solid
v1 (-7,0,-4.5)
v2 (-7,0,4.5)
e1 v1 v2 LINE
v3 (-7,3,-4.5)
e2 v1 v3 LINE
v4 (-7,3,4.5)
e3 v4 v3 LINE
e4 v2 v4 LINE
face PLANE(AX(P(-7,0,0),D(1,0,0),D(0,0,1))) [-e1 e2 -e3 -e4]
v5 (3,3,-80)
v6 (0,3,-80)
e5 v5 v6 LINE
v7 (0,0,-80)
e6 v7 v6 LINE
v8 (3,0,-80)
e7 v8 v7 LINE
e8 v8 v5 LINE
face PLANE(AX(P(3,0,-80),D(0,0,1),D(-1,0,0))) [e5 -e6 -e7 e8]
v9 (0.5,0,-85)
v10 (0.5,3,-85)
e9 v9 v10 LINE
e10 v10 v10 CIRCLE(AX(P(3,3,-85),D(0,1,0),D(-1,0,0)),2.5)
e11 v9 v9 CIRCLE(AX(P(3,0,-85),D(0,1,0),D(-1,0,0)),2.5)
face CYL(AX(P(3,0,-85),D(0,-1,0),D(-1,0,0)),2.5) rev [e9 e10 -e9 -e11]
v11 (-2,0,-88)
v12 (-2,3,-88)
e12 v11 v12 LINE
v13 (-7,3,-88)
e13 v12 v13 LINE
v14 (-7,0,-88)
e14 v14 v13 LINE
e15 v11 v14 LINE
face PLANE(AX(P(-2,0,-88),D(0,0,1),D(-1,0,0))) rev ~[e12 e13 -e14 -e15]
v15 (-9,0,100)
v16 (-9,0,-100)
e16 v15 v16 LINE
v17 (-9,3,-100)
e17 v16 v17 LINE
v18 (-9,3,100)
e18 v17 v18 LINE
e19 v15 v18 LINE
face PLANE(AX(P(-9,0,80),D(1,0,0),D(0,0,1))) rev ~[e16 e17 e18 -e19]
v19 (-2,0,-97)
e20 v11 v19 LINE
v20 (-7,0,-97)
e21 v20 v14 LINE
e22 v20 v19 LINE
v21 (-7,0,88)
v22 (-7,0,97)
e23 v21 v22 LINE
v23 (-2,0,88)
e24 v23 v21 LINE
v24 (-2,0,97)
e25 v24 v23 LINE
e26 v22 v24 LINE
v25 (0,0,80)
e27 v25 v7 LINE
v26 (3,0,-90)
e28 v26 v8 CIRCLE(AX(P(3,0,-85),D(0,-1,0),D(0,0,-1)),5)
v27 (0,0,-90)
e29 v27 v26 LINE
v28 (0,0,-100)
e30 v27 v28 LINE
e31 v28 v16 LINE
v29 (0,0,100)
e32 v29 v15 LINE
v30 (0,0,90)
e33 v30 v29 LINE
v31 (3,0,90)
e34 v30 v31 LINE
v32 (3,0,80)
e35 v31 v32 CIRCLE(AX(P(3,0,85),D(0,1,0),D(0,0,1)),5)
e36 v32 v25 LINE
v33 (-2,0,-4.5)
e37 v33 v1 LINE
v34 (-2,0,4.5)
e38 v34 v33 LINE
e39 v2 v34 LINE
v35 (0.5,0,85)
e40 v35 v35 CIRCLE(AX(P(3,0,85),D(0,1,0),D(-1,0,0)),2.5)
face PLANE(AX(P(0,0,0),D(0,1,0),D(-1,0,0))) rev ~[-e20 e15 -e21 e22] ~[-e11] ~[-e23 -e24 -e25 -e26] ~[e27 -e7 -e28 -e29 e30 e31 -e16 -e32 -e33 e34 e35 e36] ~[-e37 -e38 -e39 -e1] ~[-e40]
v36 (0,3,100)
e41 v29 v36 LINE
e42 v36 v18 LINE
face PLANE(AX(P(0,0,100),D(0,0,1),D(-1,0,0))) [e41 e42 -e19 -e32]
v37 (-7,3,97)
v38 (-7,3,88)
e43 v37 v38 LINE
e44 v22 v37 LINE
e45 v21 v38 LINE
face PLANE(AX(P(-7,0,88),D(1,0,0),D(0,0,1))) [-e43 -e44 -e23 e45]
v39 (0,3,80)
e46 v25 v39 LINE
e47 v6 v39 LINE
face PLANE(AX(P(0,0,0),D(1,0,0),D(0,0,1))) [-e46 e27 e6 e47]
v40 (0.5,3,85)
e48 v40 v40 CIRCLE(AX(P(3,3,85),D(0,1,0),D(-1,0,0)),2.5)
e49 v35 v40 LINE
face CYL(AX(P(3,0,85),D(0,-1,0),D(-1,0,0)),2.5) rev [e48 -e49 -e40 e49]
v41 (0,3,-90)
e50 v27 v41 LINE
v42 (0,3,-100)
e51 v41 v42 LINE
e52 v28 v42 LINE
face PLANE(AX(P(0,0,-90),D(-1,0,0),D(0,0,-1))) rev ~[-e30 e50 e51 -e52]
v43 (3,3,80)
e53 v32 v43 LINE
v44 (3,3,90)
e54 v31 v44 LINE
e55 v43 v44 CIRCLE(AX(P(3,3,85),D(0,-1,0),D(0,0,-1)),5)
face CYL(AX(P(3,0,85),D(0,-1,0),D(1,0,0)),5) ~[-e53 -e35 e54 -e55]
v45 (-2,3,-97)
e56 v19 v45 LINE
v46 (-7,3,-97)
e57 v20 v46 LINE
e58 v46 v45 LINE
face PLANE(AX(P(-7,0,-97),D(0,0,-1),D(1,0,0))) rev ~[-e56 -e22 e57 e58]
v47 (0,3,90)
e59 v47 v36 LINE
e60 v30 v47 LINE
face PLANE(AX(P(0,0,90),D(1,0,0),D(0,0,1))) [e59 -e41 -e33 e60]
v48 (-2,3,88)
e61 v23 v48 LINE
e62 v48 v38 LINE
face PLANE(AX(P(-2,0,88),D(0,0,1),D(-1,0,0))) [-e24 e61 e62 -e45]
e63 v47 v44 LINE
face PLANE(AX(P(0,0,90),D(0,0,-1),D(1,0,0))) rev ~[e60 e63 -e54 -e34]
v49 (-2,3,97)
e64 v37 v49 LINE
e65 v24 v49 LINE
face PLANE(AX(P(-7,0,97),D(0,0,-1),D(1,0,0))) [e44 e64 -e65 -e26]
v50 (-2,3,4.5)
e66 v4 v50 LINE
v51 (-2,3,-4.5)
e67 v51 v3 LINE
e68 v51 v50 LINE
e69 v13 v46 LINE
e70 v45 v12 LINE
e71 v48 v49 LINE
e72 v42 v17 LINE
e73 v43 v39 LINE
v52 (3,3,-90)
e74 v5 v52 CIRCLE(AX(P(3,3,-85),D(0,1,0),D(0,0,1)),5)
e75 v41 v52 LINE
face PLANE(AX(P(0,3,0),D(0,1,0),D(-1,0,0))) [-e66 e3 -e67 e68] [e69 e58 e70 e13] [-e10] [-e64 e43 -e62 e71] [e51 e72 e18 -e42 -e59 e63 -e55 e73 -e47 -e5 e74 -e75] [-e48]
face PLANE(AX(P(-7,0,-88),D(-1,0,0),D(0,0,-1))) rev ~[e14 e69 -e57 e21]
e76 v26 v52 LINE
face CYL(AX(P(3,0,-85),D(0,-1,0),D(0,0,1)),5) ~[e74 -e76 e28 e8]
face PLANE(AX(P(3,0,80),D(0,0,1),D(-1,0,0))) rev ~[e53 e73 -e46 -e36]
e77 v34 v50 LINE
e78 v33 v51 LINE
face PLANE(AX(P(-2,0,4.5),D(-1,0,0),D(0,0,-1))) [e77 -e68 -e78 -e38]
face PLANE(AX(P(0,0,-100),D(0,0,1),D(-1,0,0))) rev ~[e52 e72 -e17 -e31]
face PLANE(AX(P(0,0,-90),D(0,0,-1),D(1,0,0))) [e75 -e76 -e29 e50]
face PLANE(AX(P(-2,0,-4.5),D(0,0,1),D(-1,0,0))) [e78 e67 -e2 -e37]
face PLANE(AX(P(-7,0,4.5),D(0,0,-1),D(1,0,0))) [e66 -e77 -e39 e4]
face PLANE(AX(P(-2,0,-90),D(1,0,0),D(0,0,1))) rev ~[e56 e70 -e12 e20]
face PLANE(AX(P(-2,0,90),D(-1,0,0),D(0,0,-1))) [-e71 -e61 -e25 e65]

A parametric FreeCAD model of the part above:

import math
import FreeCAD as App
import Part
import Sketcher
from FreeCAD import Vector


def add_polygon(sketch, points):
    """Adds a closed chain of lines whose ends are joined by coincident constraints."""
    first, n = sketch.GeometryCount, len(points)
    for a, b in zip(points, points[1:] + points[:1]):
        sketch.addGeometry(Part.LineSegment(App.Vector(*a, 0), App.Vector(*b, 0)), False)
    for i in range(n):
        sketch.addConstraint(Sketcher.Constraint("Coincident", first + i, 2, first + (i + 1) % n, 1))

doc = App.newDocument("Part")
body = doc.addObject("PartDesign::Body", "Body")

# Sketch on XZ plane
sketch1 = doc.addObject("Sketcher::SketchObject", "Sketch")
body.addObject(sketch1)
sketch1.AttachmentSupport = (doc.XZ_Plane, [""])
sketch1.MapMode = "FlatFace"
sketch1.addGeometry(Part.LineSegment(Vector(3, 80, 0), Vector(0, 80, 0)), False)  # 0
sketch1.addGeometry(Part.LineSegment(Vector(0, 80, 0), Vector(0, -80, 0)), False)  # 1
sketch1.addGeometry(Part.LineSegment(Vector(0, -80, 0), Vector(3, -80, 0)), False)  # 2
sketch1.addGeometry(Part.ArcOfCircle(Part.Circle(Vector(3, -85, 0), Vector(0, 0, 1), 5), math.radians(-90), math.radians(90)), False)  # 3
sketch1.addGeometry(Part.LineSegment(Vector(3, -90, 0), Vector(0, -90, 0)), False)  # 4
sketch1.addGeometry(Part.LineSegment(Vector(0, -90, 0), Vector(0, -100, 0)), False)  # 5
sketch1.addGeometry(Part.LineSegment(Vector(0, -100, 0), Vector(-9, -100, 0)), False)  # 6
sketch1.addGeometry(Part.LineSegment(Vector(-9, -100, 0), Vector(-9, 100, 0)), False)  # 7
sketch1.addGeometry(Part.LineSegment(Vector(-9, 100, 0), Vector(0, 100, 0)), False)  # 8
sketch1.addGeometry(Part.LineSegment(Vector(0, 100, 0), Vector(0, 90, 0)), False)  # 9
sketch1.addGeometry(Part.LineSegment(Vector(0, 90, 0), Vector(3, 90, 0)), False)  # 10
sketch1.addGeometry(Part.ArcOfCircle(Part.Circle(Vector(3, 85, 0), Vector(0, 0, 1), 5), math.radians(-90), math.radians(90)), False)  # 11
add_polygon(sketch1, [(-2, 88), (-2, 97), (-7, 97), (-7, 88)])  # lines 12-15
sketch1.addGeometry(Part.Circle(Vector(3, 85, 0), Vector(0, 0, 1), 2.5), False)  # 16
add_polygon(sketch1, [(-7, 4.5), (-7, -4.5), (-2, -4.5), (-2, 4.5)])  # lines 17-20
sketch1.addGeometry(Part.Circle(Vector(3, -85, 0), Vector(0, 0, 1), 2.5), False)  # 21
add_polygon(sketch1, [(-7, -88), (-7, -97), (-2, -97), (-2, -88)])  # lines 22-25
sketch1.addConstraint([
    Sketcher.Constraint("Coincident", 0, 2, 1, 1),
    Sketcher.Constraint("Coincident", 1, 2, 2, 1),
    Sketcher.Constraint("Tangent", 2, 2, 3, 2),
    Sketcher.Constraint("Tangent", 3, 1, 4, 1),
    Sketcher.Constraint("Coincident", 4, 2, 5, 1),
    Sketcher.Constraint("Coincident", 5, 2, 6, 1),
    Sketcher.Constraint("Coincident", 6, 2, 7, 1),
    Sketcher.Constraint("Coincident", 7, 2, 8, 1),
    Sketcher.Constraint("Coincident", 8, 2, 9, 1),
    Sketcher.Constraint("Coincident", 9, 2, 10, 1),
    Sketcher.Constraint("Tangent", 10, 2, 11, 2),
    Sketcher.Constraint("Tangent", 11, 1, 0, 1),
    Sketcher.Constraint("Horizontal", 0),
    Sketcher.Constraint("Vertical", 1),
    Sketcher.Constraint("Horizontal", 2),
    Sketcher.Constraint("Horizontal", 4),
    Sketcher.Constraint("Vertical", 5),
    Sketcher.Constraint("Horizontal", 6),
    Sketcher.Constraint("Vertical", 7),
    Sketcher.Constraint("Horizontal", 8),
    Sketcher.Constraint("Vertical", 9),
    Sketcher.Constraint("Horizontal", 10),
    Sketcher.Constraint("Vertical", 12),
    Sketcher.Constraint("Horizontal", 13),
    Sketcher.Constraint("Vertical", 14),
    Sketcher.Constraint("Horizontal", 15),
    Sketcher.Constraint("Vertical", 17),
    Sketcher.Constraint("Horizontal", 18),
    Sketcher.Constraint("Vertical", 19),
    Sketcher.Constraint("Horizontal", 20),
    Sketcher.Constraint("Vertical", 22),
    Sketcher.Constraint("Horizontal", 23),
    Sketcher.Constraint("Vertical", 24),
    Sketcher.Constraint("Horizontal", 25),
    Sketcher.Constraint("Coincident", 16, 3, 11, 3),
    Sketcher.Constraint("Coincident", 21, 3, 3, 3),
    Sketcher.Constraint("Equal", 3, 11),
    Sketcher.Constraint("Equal", 16, 21),
    Sketcher.Constraint("Symmetric", 0, 2, 1, 2, -1, 1),
    Sketcher.Constraint("Symmetric", 5, 2, 8, 2, -1, 1),
    Sketcher.Constraint("Symmetric", 13, 2, 22, 2, -1),
    Sketcher.Constraint("Symmetric", 15, 2, 24, 2, -1),
    Sketcher.Constraint("PointOnObject", 4, 2, -2),
    Sketcher.Constraint("Vertical", 3, 3, 11, 3),
    Sketcher.Constraint("Vertical", 14, 2, 17, 2),
    Sketcher.Constraint("Vertical", 15, 2, 18, 2),
    Sketcher.Constraint("Equal", 8, 12),
    Sketcher.Constraint("Equal", 14, 17),
    Sketcher.Constraint("Diameter", 16, 5.0),
    Sketcher.Constraint("Radius", 3, 5.0),
    Sketcher.Constraint("DistanceX", 0, 2, 0, 1, 3.0),
    Sketcher.Constraint("DistanceX", 6, 2, 6, 1, 9.0),
    Sketcher.Constraint("DistanceX", 13, 2, 13, 1, 5.0),
    Sketcher.Constraint("DistanceY", 1, 2, 1, 1, 160.0),
    Sketcher.Constraint("DistanceY", 5, 2, 5, 1, 10.0),
    Sketcher.Constraint("DistanceY", 12, 2, 8, 2, 3.0),
    Sketcher.Constraint("DistanceX", 12, 2, 10, 2, 5.0),
    Sketcher.Constraint("DistanceY", 17, 2, -1, 1, 4.5),
])
pad1 = doc.addObject("PartDesign::Pad", "Pad")
body.addObject(pad1)
pad1.Profile = sketch1
pad1.Length = 3
pad1.Reversed = True

doc.recompute()
